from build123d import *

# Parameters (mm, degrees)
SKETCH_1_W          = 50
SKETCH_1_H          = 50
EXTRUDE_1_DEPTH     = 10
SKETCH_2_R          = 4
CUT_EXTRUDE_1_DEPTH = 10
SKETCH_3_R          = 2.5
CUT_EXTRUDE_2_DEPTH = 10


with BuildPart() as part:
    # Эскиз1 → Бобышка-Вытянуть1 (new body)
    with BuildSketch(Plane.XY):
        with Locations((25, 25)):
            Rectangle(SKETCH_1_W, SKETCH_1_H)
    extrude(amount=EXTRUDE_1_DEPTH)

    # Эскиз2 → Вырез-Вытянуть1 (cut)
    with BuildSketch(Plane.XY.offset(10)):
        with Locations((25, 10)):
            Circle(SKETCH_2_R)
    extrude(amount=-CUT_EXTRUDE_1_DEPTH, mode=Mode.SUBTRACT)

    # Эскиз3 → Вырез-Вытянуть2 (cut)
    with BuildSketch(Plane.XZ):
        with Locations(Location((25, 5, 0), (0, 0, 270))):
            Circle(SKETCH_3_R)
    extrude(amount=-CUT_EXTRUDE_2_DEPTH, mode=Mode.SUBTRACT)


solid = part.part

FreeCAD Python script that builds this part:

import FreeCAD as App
import Part
import Sketcher

V = App.Vector
Q = App.Units.Quantity

doc = App.newDocument("Part")
params = doc.addObject("Spreadsheet::Sheet", "Params")
for row, (alias, value) in enumerate([
    ("sketch1_width", "50 mm"),
    ("pad1_length", "10 mm"),
    ("sketch2_diameter", "8 mm"),
    ("pocket1_length", "10 mm"),
    ("sketch3_diameter", "5 mm"),
    ("pocket2_length", "10 mm"),
], start=1):
    params.set(f"A{row}", alias)
    params.set(f"B{row}", "=" + value)
    params.setAlias(f"B{row}", alias)

body = doc.addObject("PartDesign::Body", "Body")

sketch1 = body.newObject("Sketcher::SketchObject", "Sketch")
sketch1.AttachmentSupport = (doc.getObject("XY_Plane"), [""])
sketch1.MapMode = "FlatFace"
sketch1.addGeometry(Part.LineSegment(V(0, 50, 0), V(0, 0, 0)), False)
sketch1.addGeometry(Part.LineSegment(V(0, 0, 0), V(50, 0, 0)), False)
sketch1.addGeometry(Part.LineSegment(V(50, 0, 0), V(50, 50, 0)), False)
sketch1.addGeometry(Part.LineSegment(V(50, 50, 0), V(0, 50, 0)), False)
sketch1.addConstraint(Sketcher.Constraint("Coincident", 0, 2, 1, 1))
sketch1.addConstraint(Sketcher.Constraint("Coincident", 1, 2, 2, 1))
sketch1.addConstraint(Sketcher.Constraint("Coincident", 2, 2, 3, 1))
sketch1.addConstraint(Sketcher.Constraint("Coincident", 3, 2, 0, 1))
sketch1.addConstraint(Sketcher.Constraint("Vertical", 0))
sketch1.addConstraint(Sketcher.Constraint("Horizontal", 1))
sketch1.addConstraint(Sketcher.Constraint("Vertical", 2))
sketch1.addConstraint(Sketcher.Constraint("Horizontal", 3))
sketch1.addConstraint(Sketcher.Constraint("Coincident", 0, 2, -1, 1))
sketch1.addConstraint(Sketcher.Constraint("Equal", 3, 0))
sketch1.addConstraint(Sketcher.Constraint("DistanceX", 1, 1, 1, 2, Q("50 mm")))
sketch1.setExpression("Constraints[10]", "Params.sketch1_width")
pad1 = body.newObject("PartDesign::Pad", "Pad")
pad1.Profile = sketch1
pad1.setExpression("Length", "Params.pad1_length")

sketch2 = body.newObject("Sketcher::SketchObject", "Sketch001")
sketch2.AttachmentSupport = (doc.getObject("XY_Plane"), [""])
sketch2.MapMode = "FlatFace"
sketch2.AttachmentOffset = App.Placement(V(0, 0, 10), App.Rotation())
sketch2.addGeometry(Part.Circle(V(25, 10, 0), V(0, 0, 1), 4), False)
sketch2.addConstraint(Sketcher.Constraint("Diameter", 0, Q("8 mm")))
sketch2.addConstraint(Sketcher.Constraint("DistanceX", -1, 1, 0, 3, Q("25 mm")))
sketch2.addConstraint(Sketcher.Constraint("DistanceY", -1, 1, 0, 3, Q("10 mm")))
sketch2.setExpression("Constraints[0]", "Params.sketch2_diameter")
pocket1 = body.newObject("PartDesign::Pocket", "Pocket")
pocket1.Profile = sketch2
pocket1.setExpression("Length", "Params.pocket1_length")

sketch3 = body.newObject("Sketcher::SketchObject", "Sketch002")
sketch3.AttachmentSupport = (doc.getObject("XZ_Plane"), [""])
sketch3.MapMode = "FlatFace"
sketch3.addGeometry(Part.Circle(V(25, 5, 0), V(0, 0, 1), 2.5), False)
sketch3.addConstraint(Sketcher.Constraint("Diameter", 0, Q("5 mm")))
sketch3.addConstraint(Sketcher.Constraint("DistanceX", -1, 1, 0, 3, Q("25 mm")))
sketch3.addConstraint(Sketcher.Constraint("DistanceY", -1, 1, 0, 3, Q("5 mm")))
sketch3.setExpression("Constraints[0]", "Params.sketch3_diameter")
pocket2 = body.newObject("PartDesign::Pocket", "Pocket001")
pocket2.Profile = sketch3
pocket2.setExpression("Length", "Params.pocket2_length")

doc.recompute()
